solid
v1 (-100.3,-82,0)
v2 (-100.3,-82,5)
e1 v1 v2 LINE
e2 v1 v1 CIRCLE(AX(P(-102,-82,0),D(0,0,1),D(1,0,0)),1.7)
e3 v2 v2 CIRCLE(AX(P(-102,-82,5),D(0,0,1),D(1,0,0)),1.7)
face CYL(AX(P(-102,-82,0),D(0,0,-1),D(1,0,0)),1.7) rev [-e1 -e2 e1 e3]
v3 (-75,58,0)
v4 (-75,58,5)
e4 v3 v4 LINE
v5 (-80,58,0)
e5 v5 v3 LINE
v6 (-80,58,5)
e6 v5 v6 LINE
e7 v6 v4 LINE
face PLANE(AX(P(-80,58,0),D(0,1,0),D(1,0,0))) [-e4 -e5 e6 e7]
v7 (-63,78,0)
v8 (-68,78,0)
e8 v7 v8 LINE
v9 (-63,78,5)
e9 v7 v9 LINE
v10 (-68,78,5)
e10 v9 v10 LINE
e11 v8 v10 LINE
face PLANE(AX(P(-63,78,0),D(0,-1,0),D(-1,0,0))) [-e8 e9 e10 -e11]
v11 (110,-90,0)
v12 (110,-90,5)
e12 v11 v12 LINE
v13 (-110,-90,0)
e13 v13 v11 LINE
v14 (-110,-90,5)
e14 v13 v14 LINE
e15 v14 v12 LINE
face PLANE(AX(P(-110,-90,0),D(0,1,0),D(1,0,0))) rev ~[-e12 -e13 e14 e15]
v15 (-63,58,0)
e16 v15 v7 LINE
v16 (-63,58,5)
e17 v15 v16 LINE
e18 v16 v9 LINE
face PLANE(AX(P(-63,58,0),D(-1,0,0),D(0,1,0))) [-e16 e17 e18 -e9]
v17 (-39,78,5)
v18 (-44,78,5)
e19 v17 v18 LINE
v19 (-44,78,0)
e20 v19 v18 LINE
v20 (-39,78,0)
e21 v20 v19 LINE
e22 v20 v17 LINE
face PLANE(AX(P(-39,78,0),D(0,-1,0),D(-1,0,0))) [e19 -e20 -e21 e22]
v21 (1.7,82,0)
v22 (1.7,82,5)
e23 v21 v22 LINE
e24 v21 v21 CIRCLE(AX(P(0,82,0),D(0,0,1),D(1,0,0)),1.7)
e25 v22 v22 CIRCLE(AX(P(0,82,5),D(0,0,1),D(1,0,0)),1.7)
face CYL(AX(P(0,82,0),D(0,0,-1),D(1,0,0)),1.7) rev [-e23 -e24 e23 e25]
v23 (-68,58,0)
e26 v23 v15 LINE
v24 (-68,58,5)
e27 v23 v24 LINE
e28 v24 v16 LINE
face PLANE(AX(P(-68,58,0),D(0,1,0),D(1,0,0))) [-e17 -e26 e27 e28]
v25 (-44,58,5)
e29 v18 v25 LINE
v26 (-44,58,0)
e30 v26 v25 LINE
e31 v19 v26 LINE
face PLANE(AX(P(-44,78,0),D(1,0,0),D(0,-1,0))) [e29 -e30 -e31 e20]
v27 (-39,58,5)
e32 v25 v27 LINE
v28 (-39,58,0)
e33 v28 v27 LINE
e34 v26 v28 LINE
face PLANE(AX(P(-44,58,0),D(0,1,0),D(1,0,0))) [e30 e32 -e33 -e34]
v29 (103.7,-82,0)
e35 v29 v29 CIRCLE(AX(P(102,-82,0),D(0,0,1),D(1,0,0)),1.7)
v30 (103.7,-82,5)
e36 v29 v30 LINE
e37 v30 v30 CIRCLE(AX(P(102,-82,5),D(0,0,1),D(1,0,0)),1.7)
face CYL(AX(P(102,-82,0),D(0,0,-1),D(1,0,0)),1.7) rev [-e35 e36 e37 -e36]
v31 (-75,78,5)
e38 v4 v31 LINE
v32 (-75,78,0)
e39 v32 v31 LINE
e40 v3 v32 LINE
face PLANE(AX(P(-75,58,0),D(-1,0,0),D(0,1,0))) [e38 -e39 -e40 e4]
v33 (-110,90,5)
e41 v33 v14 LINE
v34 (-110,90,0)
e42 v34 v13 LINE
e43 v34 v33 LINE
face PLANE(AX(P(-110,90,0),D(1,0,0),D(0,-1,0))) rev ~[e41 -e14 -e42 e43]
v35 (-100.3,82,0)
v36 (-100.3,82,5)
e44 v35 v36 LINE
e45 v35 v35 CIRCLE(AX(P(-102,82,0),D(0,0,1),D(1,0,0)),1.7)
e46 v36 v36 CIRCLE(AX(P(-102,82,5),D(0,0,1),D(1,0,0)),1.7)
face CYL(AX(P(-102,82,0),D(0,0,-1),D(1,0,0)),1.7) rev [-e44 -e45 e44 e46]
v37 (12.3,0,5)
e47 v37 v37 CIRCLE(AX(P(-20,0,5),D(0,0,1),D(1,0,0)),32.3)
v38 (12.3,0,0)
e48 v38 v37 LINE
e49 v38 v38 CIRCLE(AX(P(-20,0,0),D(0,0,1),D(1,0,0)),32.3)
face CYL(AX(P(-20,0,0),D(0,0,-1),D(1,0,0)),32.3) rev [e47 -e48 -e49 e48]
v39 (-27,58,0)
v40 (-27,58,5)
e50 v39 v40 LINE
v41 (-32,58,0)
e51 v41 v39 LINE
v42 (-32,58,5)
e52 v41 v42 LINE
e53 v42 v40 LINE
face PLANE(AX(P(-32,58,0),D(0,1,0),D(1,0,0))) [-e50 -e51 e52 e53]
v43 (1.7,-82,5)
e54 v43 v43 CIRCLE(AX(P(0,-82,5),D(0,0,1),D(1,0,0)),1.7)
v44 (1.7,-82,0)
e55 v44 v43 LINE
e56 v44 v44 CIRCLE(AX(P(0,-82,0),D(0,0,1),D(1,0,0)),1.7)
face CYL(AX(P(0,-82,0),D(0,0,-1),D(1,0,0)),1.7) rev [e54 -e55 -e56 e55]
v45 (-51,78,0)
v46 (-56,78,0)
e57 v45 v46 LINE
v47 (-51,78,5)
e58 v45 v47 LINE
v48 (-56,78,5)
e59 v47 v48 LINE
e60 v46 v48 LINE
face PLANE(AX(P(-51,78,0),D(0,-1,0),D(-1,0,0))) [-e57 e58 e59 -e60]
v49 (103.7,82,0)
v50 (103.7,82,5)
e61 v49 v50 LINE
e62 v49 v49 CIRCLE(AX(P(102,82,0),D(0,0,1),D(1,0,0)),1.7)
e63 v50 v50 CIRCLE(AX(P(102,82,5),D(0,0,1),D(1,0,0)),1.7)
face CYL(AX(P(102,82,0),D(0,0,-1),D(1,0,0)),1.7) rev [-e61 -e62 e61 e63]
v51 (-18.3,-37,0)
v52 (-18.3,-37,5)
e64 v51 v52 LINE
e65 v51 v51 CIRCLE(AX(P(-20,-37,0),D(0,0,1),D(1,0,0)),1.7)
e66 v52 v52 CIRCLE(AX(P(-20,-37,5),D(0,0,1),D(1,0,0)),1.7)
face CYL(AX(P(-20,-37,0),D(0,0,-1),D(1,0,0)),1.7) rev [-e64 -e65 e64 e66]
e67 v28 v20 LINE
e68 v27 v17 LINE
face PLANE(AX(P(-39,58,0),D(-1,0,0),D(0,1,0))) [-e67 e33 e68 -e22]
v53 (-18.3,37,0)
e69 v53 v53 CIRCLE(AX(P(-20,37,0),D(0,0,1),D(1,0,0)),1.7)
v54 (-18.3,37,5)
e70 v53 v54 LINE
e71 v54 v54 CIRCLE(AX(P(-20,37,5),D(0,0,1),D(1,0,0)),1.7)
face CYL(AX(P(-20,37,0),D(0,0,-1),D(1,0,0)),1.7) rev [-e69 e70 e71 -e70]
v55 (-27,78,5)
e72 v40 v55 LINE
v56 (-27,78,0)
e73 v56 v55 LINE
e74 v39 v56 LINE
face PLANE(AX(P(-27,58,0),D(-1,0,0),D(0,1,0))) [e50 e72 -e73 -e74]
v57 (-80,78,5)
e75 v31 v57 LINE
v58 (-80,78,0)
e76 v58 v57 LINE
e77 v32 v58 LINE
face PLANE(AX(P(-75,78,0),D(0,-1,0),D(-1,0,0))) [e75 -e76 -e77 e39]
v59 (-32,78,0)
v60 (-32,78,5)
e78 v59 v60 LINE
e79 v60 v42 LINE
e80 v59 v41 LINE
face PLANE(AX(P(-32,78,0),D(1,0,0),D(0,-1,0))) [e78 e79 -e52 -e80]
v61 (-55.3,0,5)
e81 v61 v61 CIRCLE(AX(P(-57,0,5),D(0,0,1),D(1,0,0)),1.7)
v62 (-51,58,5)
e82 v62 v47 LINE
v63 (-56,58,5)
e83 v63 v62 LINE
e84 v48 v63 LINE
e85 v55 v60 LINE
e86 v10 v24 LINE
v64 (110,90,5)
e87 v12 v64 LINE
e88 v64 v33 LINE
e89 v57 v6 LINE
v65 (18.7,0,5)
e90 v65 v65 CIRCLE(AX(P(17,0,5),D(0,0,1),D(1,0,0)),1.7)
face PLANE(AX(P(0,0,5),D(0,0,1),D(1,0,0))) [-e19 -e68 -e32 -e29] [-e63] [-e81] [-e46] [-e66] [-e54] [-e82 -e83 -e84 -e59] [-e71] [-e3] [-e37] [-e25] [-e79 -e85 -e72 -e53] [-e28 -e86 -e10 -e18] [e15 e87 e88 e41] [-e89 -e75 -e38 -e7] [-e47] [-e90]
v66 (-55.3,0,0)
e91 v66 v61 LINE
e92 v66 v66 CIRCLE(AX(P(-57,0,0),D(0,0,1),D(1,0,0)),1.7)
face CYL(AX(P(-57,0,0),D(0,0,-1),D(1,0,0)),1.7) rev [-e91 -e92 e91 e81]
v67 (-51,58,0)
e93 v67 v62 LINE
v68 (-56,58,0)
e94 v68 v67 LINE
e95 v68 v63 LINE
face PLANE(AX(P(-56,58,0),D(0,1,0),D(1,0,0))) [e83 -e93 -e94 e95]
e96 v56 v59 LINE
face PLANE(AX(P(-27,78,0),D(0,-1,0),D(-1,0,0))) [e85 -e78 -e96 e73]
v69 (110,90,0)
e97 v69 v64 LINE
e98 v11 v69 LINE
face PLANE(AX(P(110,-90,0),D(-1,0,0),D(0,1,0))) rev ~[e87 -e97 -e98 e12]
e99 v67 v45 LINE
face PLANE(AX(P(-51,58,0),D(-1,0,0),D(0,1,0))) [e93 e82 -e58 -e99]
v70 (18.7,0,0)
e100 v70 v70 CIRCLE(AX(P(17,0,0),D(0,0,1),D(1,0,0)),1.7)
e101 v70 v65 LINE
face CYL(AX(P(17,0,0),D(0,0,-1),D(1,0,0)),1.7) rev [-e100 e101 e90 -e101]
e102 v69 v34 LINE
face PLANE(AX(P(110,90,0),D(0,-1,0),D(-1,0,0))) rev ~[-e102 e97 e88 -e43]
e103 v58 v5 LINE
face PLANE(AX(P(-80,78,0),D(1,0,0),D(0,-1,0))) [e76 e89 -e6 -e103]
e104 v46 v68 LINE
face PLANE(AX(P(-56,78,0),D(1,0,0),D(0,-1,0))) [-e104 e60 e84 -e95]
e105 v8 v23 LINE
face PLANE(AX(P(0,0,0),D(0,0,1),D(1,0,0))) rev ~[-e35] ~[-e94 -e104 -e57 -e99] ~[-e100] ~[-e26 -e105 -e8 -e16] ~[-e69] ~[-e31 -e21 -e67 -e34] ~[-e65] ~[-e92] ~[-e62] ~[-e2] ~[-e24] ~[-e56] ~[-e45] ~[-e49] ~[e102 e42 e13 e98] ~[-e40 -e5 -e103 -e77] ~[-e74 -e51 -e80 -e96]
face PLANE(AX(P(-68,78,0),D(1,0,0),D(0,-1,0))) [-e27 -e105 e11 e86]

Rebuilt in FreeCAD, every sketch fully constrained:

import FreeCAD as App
import Part
import Sketcher

doc = App.newDocument("Part")
body = doc.addObject("PartDesign::Body", "Body")

# Sketch on XY plane
sketch1 = doc.addObject("Sketcher::SketchObject", "Sketch")
body.addObject(sketch1)
sketch1.AttachmentSupport = (doc.XY_Plane, [""])
sketch1.MapMode = "FlatFace"
sketch1.addGeometry(Part.LineSegment(App.Vector(-110, 90, 0), App.Vector(-110, -90, 0)), False)
sketch1.addGeometry(Part.LineSegment(App.Vector(-110, -90, 0), App.Vector(110, -90, 0)), False)
sketch1.addGeometry(Part.LineSegment(App.Vector(110, -90, 0), App.Vector(110, 90, 0)), False)
sketch1.addGeometry(Part.LineSegment(App.Vector(110, 90, 0), App.Vector(-110, 90, 0)), False)
sketch1.addGeometry(Part.Circle(App.Vector(-102, -82, 0), App.Vector(0, 0, 1), 1.7), False)
sketch1.addGeometry(Part.Circle(App.Vector(-20, -37, 0), App.Vector(0, 0, 1), 1.7), False)
sketch1.addGeometry(Part.Circle(App.Vector(0, -82, 0), App.Vector(0, 0, 1), 1.7), False)
sketch1.addGeometry(Part.Circle(App.Vector(102, -82, 0), App.Vector(0, 0, 1), 1.7), False)
sketch1.addGeometry(Part.Circle(App.Vector(-57, 0, 0), App.Vector(0, 0, 1), 1.7), False)
sketch1.addGeometry(Part.Circle(App.Vector(-20, 0, 0), App.Vector(0, 0, 1), 32.3), False)
sketch1.addGeometry(Part.Circle(App.Vector(-20, 37, 0), App.Vector(0, 0, 1), 1.7), False)
sketch1.addGeometry(Part.Circle(App.Vector(-102, 82, 0), App.Vector(0, 0, 1), 1.7), False)
sketch1.addGeometry(Part.LineSegment(App.Vector(-75, 58, 0), App.Vector(-80, 58, 0)), False)
sketch1.addGeometry(Part.LineSegment(App.Vector(-80, 58, 0), App.Vector(-80, 78, 0)), False)
sketch1.addGeometry(Part.LineSegment(App.Vector(-80, 78, 0), App.Vector(-75, 78, 0)), False)
sketch1.addGeometry(Part.LineSegment(App.Vector(-75, 78, 0), App.Vector(-75, 58, 0)), False)
sketch1.addGeometry(Part.LineSegment(App.Vector(-63, 58, 0), App.Vector(-68, 58, 0)), False)
sketch1.addGeometry(Part.LineSegment(App.Vector(-68, 58, 0), App.Vector(-68, 78, 0)), False)
sketch1.addGeometry(Part.LineSegment(App.Vector(-68, 78, 0), App.Vector(-63, 78, 0)), False)
sketch1.addGeometry(Part.LineSegment(App.Vector(-63, 78, 0), App.Vector(-63, 58, 0)), False)
sketch1.addGeometry(Part.LineSegment(App.Vector(-51, 58, 0), App.Vector(-56, 58, 0)), False)
sketch1.addGeometry(Part.LineSegment(App.Vector(-56, 58, 0), App.Vector(-56, 78, 0)), False)
sketch1.addGeometry(Part.LineSegment(App.Vector(-56, 78, 0), App.Vector(-51, 78, 0)), False)
sketch1.addGeometry(Part.LineSegment(App.Vector(-51, 78, 0), App.Vector(-51, 58, 0)), False)
sketch1.addGeometry(Part.LineSegment(App.Vector(-39, 58, 0), App.Vector(-44, 58, 0)), False)
sketch1.addGeometry(Part.LineSegment(App.Vector(-44, 58, 0), App.Vector(-44, 78, 0)), False)
sketch1.addGeometry(Part.LineSegment(App.Vector(-44, 78, 0), App.Vector(-39, 78, 0)), False)
sketch1.addGeometry(Part.LineSegment(App.Vector(-39, 78, 0), App.Vector(-39, 58, 0)), False)
sketch1.addGeometry(Part.LineSegment(App.Vector(-27, 58, 0), App.Vector(-32, 58, 0)), False)
sketch1.addGeometry(Part.LineSegment(App.Vector(-32, 58, 0), App.Vector(-32, 78, 0)), False)
sketch1.addGeometry(Part.LineSegment(App.Vector(-32, 78, 0), App.Vector(-27, 78, 0)), False)
sketch1.addGeometry(Part.LineSegment(App.Vector(-27, 78, 0), App.Vector(-27, 58, 0)), False)
sketch1.addGeometry(Part.Circle(App.Vector(17, 0, 0), App.Vector(0, 0, 1), 1.7), False)
sketch1.addGeometry(Part.Circle(App.Vector(0, 82, 0), App.Vector(0, 0, 1), 1.7), False)
sketch1.addGeometry(Part.Circle(App.Vector(102, 82, 0), App.Vector(0, 0, 1), 1.7), False)
sketch1.addConstraint(Sketcher.Constraint("Coincident", 0, 2, 1, 1))
sketch1.addConstraint(Sketcher.Constraint("Coincident", 1, 2, 2, 1))
sketch1.addConstraint(Sketcher.Constraint("Coincident", 2, 2, 3, 1))
sketch1.addConstraint(Sketcher.Constraint("Coincident", 3, 2, 0, 1))
sketch1.addConstraint(Sketcher.Constraint("Coincident", 12, 2, 13, 1))
sketch1.addConstraint(Sketcher.Constraint("Coincident", 13, 2, 14, 1))
sketch1.addConstraint(Sketcher.Constraint("Coincident", 14, 2, 15, 1))
sketch1.addConstraint(Sketcher.Constraint("Coincident", 15, 2, 12, 1))
sketch1.addConstraint(Sketcher.Constraint("Coincident", 16, 2, 17, 1))
sketch1.addConstraint(Sketcher.Constraint("Coincident", 17, 2, 18, 1))
sketch1.addConstraint(Sketcher.Constraint("Coincident", 18, 2, 19, 1))
sketch1.addConstraint(Sketcher.Constraint("Coincident", 19, 2, 16, 1))
sketch1.addConstraint(Sketcher.Constraint("Coincident", 20, 2, 21, 1))
sketch1.addConstraint(Sketcher.Constraint("Coincident", 21, 2, 22, 1))
sketch1.addConstraint(Sketcher.Constraint("Coincident", 22, 2, 23, 1))
sketch1.addConstraint(Sketcher.Constraint("Coincident", 23, 2, 20, 1))
sketch1.addConstraint(Sketcher.Constraint("Coincident", 24, 2, 25, 1))
sketch1.addConstraint(Sketcher.Constraint("Coincident", 25, 2, 26, 1))
sketch1.addConstraint(Sketcher.Constraint("Coincident", 26, 2, 27, 1))
sketch1.addConstraint(Sketcher.Constraint("Coincident", 27, 2, 24, 1))
sketch1.addConstraint(Sketcher.Constraint("Coincident", 28, 2, 29, 1))
sketch1.addConstraint(Sketcher.Constraint("Coincident", 29, 2, 30, 1))
sketch1.addConstraint(Sketcher.Constraint("Coincident", 30, 2, 31, 1))
sketch1.addConstraint(Sketcher.Constraint("Coincident", 31, 2, 28, 1))
sketch1.addConstraint(Sketcher.Constraint("Vertical", 0))
sketch1.addConstraint(Sketcher.Constraint("Horizontal", 1))
sketch1.addConstraint(Sketcher.Constraint("Vertical", 2))
sketch1.addConstraint(Sketcher.Constraint("Horizontal", 3))
sketch1.addConstraint(Sketcher.Constraint("Horizontal", 12))
sketch1.addConstraint(Sketcher.Constraint("Vertical", 13))
sketch1.addConstraint(Sketcher.Constraint("Horizontal", 14))
sketch1.addConstraint(Sketcher.Constraint("Vertical", 15))
sketch1.addConstraint(Sketcher.Constraint("Horizontal", 16))
sketch1.addConstraint(Sketcher.Constraint("Vertical", 17))
sketch1.addConstraint(Sketcher.Constraint("Horizontal", 18))
sketch1.addConstraint(Sketcher.Constraint("Vertical", 19))
sketch1.addConstraint(Sketcher.Constraint("Horizontal", 20))
sketch1.addConstraint(Sketcher.Constraint("Vertical", 21))
sketch1.addConstraint(Sketcher.Constraint("Horizontal", 22))
sketch1.addConstraint(Sketcher.Constraint("Vertical", 23))
sketch1.addConstraint(Sketcher.Constraint("Horizontal", 24))
sketch1.addConstraint(Sketcher.Constraint("Vertical", 25))
sketch1.addConstraint(Sketcher.Constraint("Horizontal", 26))
sketch1.addConstraint(Sketcher.Constraint("Vertical", 27))
sketch1.addConstraint(Sketcher.Constraint("Horizontal", 28))
sketch1.addConstraint(Sketcher.Constraint("Vertical", 29))
sketch1.addConstraint(Sketcher.Constraint("Horizontal", 30))
sketch1.addConstraint(Sketcher.Constraint("Vertical", 31))
sketch1.addConstraint(Sketcher.Constraint("Equal", 4, 5))
sketch1.addConstraint(Sketcher.Constraint("Equal", 5, 6))
sketch1.addConstraint(Sketcher.Constraint("Equal", 6, 7))
sketch1.addConstraint(Sketcher.Constraint("Equal", 7, 8))
sketch1.addConstraint(Sketcher.Constraint("Equal", 8, 10))
sketch1.addConstraint(Sketcher.Constraint("Equal", 10, 11))
sketch1.addConstraint(Sketcher.Constraint("Equal", 11, 32))
sketch1.addConstraint(Sketcher.Constraint("Equal", 32, 33))
sketch1.addConstraint(Sketcher.Constraint("Equal", 33, 34))
sketch1.addConstraint(Sketcher.Constraint("Symmetric", 7, 3, 11, 3, -1, 1))
sketch1.addConstraint(Sketcher.Constraint("Symmetric", 6, 3, 33, 3, -1, 1))
sketch1.addConstraint(Sketcher.Constraint("Symmetric", 4, 3, 34, 3, -1, 1))
sketch1.addConstraint(Sketcher.Constraint("Symmetric", 0, 2, 2, 2, -1, 1))
sketch1.addConstraint(Sketcher.Constraint("Symmetric", 4, 3, 7, 3, -2))
sketch1.addConstraint(Sketcher.Constraint("Symmetric", 5, 3, 10, 3, -1))
sketch1.addConstraint(Sketcher.Constraint("PointOnObject", 6, 3, -2))
sketch1.addConstraint(Sketcher.Constraint("PointOnObject", 8, 3, -1))
sketch1.addConstraint(Sketcher.Constraint("PointOnObject", 9, 3, -1))
sketch1.addConstraint(Sketcher.Constraint("PointOnObject", 32, 3, -1))
sketch1.addConstraint(Sketcher.Constraint("Horizontal", 4, 3, 6, 3))
sketch1.addConstraint(Sketcher.Constraint("Horizontal", 15, 2, 16, 2))
sketch1.addConstraint(Sketcher.Constraint("Horizontal", 14, 2, 17, 2))
sketch1.addConstraint(Sketcher.Constraint("Horizontal", 19, 2, 20, 2))
sketch1.addConstraint(Sketcher.Constraint("Horizontal", 18, 2, 21, 2))
sketch1.addConstraint(Sketcher.Constraint("Horizontal", 23, 2, 24, 2))
sketch1.addConstraint(Sketcher.Constraint("Horizontal", 22, 2, 25, 2))
sketch1.addConstraint(Sketcher.Constraint("Horizontal", 27, 2, 28, 2))
sketch1.addConstraint(Sketcher.Constraint("Horizontal", 26, 2, 29, 2))
sketch1.addConstraint(Sketcher.Constraint("Vertical", 5, 3, 9, 3))
sketch1.addConstraint(Sketcher.Constraint("Equal", 14, 16))
sketch1.addConstraint(Sketcher.Constraint("Equal", 18, 20))
sketch1.addConstraint(Sketcher.Constraint("Equal", 22, 24))
sketch1.addConstraint(Sketcher.Constraint("Equal", 26, 28))
sketch1.addConstraint(Sketcher.Constraint("Diameter", 4, 3.4))
sketch1.addConstraint(Sketcher.Constraint("Diameter", 9, 64.6))
sketch1.addConstraint(Sketcher.Constraint("DistanceX", 1, 1, 1, 2, 220.0))
sketch1.addConstraint(Sketcher.Constraint("DistanceX", 12, 2, 12, 1, 5.0))
sketch1.addConstraint(Sketcher.Constraint("DistanceY", 0, 2, 0, 1, 180.0))
sketch1.addConstraint(Sketcher.Constraint("DistanceY", 13, 1, 13, 2, 20.0))
sketch1.addConstraint(Sketcher.Constraint("DistanceX", 4, 3, -1, 1, 102.0))
sketch1.addConstraint(Sketcher.Constraint("DistanceY", 4, 3, -1, 1, 82.0))
sketch1.addConstraint(Sketcher.Constraint("DistanceX", 5, 3, -1, 1, 20.0))
sketch1.addConstraint(Sketcher.Constraint("DistanceY", 5, 3, -1, 1, 37.0))
sketch1.addConstraint(Sketcher.Constraint("DistanceX", 8, 3, -1, 1, 57.0))
sketch1.addConstraint(Sketcher.Constraint("DistanceX", -1, 1, 32, 3, 17.0))
sketch1.addConstraint(Sketcher.Constraint("DistanceX", 12, 2, -1, 1, 80.0))
sketch1.addConstraint(Sketcher.Constraint("DistanceY", -1, 1, 12, 2, 58.0))
sketch1.addConstraint(Sketcher.Constraint("DistanceX", 16, 2, -1, 1, 68.0))
sketch1.addConstraint(Sketcher.Constraint("DistanceX", 20, 2, -1, 1, 56.0))
sketch1.addConstraint(Sketcher.Constraint("DistanceX", 24, 2, -1, 1, 44.0))
sketch1.addConstraint(Sketcher.Constraint("DistanceX", 28, 2, -1, 1, 32.0))
pad1 = doc.addObject("PartDesign::Pad", "Pad")
body.addObject(pad1)
pad1.Profile = sketch1
pad1.Length = 5

doc.recompute()
